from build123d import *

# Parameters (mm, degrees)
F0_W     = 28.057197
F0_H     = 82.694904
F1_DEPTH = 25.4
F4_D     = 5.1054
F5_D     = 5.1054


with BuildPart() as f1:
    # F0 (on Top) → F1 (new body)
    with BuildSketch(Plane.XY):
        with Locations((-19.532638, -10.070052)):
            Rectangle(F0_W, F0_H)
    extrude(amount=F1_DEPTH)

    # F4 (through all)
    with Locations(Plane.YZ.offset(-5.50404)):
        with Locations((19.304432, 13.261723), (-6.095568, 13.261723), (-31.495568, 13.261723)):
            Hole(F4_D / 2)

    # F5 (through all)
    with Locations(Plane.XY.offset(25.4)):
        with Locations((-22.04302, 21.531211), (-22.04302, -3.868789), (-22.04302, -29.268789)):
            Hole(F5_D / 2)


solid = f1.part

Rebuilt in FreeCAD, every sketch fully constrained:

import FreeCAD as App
import Part
import Sketcher
from FreeCAD import Vector
Q = App.Units.Quantity


def add_polygon(sketch, points):
    """Adds a closed chain of lines whose ends are joined by coincident constraints."""
    first, n = sketch.GeometryCount, len(points)
    for a, b in zip(points, points[1:] + points[:1]):
        sketch.addGeometry(Part.LineSegment(App.Vector(*a, 0), App.Vector(*b, 0)), False)
    for i in range(n):
        sketch.addConstraint(Sketcher.Constraint("Coincident", first + i, 2, first + (i + 1) % n, 1))

doc = App.newDocument("Part")
params = doc.addObject("Spreadsheet::Sheet", "Params")
for row, (alias, value) in enumerate([
    ("pad1_length", "1 in"),
    ("sketch2_diameter", "0.201 in"),
    ("hole_diameter", "0.201 in"),
    ("sketch3_diameter", "0.201 in"),
    ("hole2_diameter", "0.201 in"),
], start=1):
    params.set(f"A{row}", alias)
    params.set(f"B{row}", "=" + value)
    params.setAlias(f"B{row}", alias)

body = doc.addObject("PartDesign::Body", "Body")

# Sketch on XY plane
sketch1 = doc.addObject("Sketcher::SketchObject", "Sketch")
body.addObject(sketch1)
sketch1.AttachmentSupport = (doc.XY_Plane, [""])
sketch1.MapMode = "FlatFace"
add_polygon(sketch1, [(-34, 31), (-34, -51), (-6, -51), (-6, 31)])  # lines 0-3
sketch1.addConstraint([
    Sketcher.Constraint("Vertical", 0),
    Sketcher.Constraint("Horizontal", 1),
    Sketcher.Constraint("Vertical", 2),
    Sketcher.Constraint("Horizontal", 3),
    Sketcher.Constraint("DistanceY", -1, 1, 2, 2, 31.2774),
    Sketcher.Constraint("DistanceX", 1, 1, 1, 2, 28.057197),
    Sketcher.Constraint("DistanceY", 0, 2, 0, 1, 82.694904),
    Sketcher.Constraint("DistanceX", 1, 2, -1, 1, 5.50404),
])
pad1 = doc.addObject("PartDesign::Pad", "Pad")
body.addObject(pad1)
pad1.Profile = sketch1
pad1.setExpression("Length", "Params.pad1_length")

# Sketch on YZ plane
sketch2 = doc.addObject("Sketcher::SketchObject", "Sketch001")
body.addObject(sketch2)
sketch2.AttachmentSupport = (doc.YZ_Plane, [""])
sketch2.MapMode = "FlatFace"
sketch2.AttachmentOffset = App.Placement(Vector(0, 0, -5.50404), App.Rotation())
sketch2.addGeometry([
    Part.Circle(Vector(19.3, 13.3, 0), Vector(0, 0, 1), 2.6),
    Part.Circle(Vector(-6.1, 13.3, 0), Vector(0, 0, 1), 2.6),
    Part.Circle(Vector(-31.5, 13.3, 0), Vector(0, 0, 1), 2.6),
], False)
sketch2.addConstraint([
    Sketcher.Constraint("Equal", 0, 1),
    Sketcher.Constraint("Equal", 1, 2),
    Sketcher.Constraint("Horizontal", 0, 3, 1, 3),
    Sketcher.Constraint("Horizontal", 1, 3, 2, 3),
    Sketcher.Constraint("Diameter", 0, Q("0.201 in")),
    Sketcher.Constraint("DistanceX", 1, 3, 0, 3, Q("1 in")),
    Sketcher.Constraint("DistanceX", 2, 3, 1, 3, Q("1 in")),
    Sketcher.Constraint("DistanceX", -1, 1, 0, 3, 19.304432),
    Sketcher.Constraint("DistanceY", -1, 1, 0, 3, 13.261723),
])
sketch2.setExpression("Constraints[4]", "Params.sketch2_diameter")
doc.recompute()
hole = doc.addObject("PartDesign::Hole", "Hole")
body.addObject(hole)
hole.Profile = sketch2
hole.ThreadType = "None"
hole.setExpression("Diameter", "Params.hole_diameter")
hole.DepthType = "ThroughAll"

# Sketch on XY plane
sketch3 = doc.addObject("Sketcher::SketchObject", "Sketch002")
body.addObject(sketch3)
sketch3.AttachmentSupport = (doc.XY_Plane, [""])
sketch3.MapMode = "FlatFace"
sketch3.AttachmentOffset = App.Placement(Vector(0, 0, 1 * 25.4), App.Rotation())
sketch3.addGeometry([
    Part.Circle(Vector(-22, 21.5, 0), Vector(0, 0, 1), 2.6),
    Part.Circle(Vector(-22, -3.9, 0), Vector(0, 0, 1), 2.6),
    Part.Circle(Vector(-22, -29.3, 0), Vector(0, 0, 1), 2.6),
], False)
sketch3.addConstraint([
    Sketcher.Constraint("Equal", 0, 1),
    Sketcher.Constraint("Equal", 1, 2),
    Sketcher.Constraint("Vertical", 0, 3, 1, 3),
    Sketcher.Constraint("Vertical", 1, 3, 2, 3),
    Sketcher.Constraint("Diameter", 0, Q("0.201 in")),
    Sketcher.Constraint("DistanceY", 1, 3, 0, 3, Q("1 in")),
    Sketcher.Constraint("DistanceY", 2, 3, 1, 3, Q("1 in")),
    Sketcher.Constraint("DistanceX", 0, 3, -1, 1, 22.04302),
    Sketcher.Constraint("DistanceY", -1, 1, 0, 3, 21.531211),
])
sketch3.setExpression("Constraints[4]", "Params.sketch3_diameter")
doc.recompute()
hole2 = doc.addObject("PartDesign::Hole", "Hole001")
body.addObject(hole2)
hole2.Profile = sketch3
hole2.ThreadType = "None"
hole2.setExpression("Diameter", "Params.hole2_diameter")
hole2.DepthType = "ThroughAll"

doc.recompute()
